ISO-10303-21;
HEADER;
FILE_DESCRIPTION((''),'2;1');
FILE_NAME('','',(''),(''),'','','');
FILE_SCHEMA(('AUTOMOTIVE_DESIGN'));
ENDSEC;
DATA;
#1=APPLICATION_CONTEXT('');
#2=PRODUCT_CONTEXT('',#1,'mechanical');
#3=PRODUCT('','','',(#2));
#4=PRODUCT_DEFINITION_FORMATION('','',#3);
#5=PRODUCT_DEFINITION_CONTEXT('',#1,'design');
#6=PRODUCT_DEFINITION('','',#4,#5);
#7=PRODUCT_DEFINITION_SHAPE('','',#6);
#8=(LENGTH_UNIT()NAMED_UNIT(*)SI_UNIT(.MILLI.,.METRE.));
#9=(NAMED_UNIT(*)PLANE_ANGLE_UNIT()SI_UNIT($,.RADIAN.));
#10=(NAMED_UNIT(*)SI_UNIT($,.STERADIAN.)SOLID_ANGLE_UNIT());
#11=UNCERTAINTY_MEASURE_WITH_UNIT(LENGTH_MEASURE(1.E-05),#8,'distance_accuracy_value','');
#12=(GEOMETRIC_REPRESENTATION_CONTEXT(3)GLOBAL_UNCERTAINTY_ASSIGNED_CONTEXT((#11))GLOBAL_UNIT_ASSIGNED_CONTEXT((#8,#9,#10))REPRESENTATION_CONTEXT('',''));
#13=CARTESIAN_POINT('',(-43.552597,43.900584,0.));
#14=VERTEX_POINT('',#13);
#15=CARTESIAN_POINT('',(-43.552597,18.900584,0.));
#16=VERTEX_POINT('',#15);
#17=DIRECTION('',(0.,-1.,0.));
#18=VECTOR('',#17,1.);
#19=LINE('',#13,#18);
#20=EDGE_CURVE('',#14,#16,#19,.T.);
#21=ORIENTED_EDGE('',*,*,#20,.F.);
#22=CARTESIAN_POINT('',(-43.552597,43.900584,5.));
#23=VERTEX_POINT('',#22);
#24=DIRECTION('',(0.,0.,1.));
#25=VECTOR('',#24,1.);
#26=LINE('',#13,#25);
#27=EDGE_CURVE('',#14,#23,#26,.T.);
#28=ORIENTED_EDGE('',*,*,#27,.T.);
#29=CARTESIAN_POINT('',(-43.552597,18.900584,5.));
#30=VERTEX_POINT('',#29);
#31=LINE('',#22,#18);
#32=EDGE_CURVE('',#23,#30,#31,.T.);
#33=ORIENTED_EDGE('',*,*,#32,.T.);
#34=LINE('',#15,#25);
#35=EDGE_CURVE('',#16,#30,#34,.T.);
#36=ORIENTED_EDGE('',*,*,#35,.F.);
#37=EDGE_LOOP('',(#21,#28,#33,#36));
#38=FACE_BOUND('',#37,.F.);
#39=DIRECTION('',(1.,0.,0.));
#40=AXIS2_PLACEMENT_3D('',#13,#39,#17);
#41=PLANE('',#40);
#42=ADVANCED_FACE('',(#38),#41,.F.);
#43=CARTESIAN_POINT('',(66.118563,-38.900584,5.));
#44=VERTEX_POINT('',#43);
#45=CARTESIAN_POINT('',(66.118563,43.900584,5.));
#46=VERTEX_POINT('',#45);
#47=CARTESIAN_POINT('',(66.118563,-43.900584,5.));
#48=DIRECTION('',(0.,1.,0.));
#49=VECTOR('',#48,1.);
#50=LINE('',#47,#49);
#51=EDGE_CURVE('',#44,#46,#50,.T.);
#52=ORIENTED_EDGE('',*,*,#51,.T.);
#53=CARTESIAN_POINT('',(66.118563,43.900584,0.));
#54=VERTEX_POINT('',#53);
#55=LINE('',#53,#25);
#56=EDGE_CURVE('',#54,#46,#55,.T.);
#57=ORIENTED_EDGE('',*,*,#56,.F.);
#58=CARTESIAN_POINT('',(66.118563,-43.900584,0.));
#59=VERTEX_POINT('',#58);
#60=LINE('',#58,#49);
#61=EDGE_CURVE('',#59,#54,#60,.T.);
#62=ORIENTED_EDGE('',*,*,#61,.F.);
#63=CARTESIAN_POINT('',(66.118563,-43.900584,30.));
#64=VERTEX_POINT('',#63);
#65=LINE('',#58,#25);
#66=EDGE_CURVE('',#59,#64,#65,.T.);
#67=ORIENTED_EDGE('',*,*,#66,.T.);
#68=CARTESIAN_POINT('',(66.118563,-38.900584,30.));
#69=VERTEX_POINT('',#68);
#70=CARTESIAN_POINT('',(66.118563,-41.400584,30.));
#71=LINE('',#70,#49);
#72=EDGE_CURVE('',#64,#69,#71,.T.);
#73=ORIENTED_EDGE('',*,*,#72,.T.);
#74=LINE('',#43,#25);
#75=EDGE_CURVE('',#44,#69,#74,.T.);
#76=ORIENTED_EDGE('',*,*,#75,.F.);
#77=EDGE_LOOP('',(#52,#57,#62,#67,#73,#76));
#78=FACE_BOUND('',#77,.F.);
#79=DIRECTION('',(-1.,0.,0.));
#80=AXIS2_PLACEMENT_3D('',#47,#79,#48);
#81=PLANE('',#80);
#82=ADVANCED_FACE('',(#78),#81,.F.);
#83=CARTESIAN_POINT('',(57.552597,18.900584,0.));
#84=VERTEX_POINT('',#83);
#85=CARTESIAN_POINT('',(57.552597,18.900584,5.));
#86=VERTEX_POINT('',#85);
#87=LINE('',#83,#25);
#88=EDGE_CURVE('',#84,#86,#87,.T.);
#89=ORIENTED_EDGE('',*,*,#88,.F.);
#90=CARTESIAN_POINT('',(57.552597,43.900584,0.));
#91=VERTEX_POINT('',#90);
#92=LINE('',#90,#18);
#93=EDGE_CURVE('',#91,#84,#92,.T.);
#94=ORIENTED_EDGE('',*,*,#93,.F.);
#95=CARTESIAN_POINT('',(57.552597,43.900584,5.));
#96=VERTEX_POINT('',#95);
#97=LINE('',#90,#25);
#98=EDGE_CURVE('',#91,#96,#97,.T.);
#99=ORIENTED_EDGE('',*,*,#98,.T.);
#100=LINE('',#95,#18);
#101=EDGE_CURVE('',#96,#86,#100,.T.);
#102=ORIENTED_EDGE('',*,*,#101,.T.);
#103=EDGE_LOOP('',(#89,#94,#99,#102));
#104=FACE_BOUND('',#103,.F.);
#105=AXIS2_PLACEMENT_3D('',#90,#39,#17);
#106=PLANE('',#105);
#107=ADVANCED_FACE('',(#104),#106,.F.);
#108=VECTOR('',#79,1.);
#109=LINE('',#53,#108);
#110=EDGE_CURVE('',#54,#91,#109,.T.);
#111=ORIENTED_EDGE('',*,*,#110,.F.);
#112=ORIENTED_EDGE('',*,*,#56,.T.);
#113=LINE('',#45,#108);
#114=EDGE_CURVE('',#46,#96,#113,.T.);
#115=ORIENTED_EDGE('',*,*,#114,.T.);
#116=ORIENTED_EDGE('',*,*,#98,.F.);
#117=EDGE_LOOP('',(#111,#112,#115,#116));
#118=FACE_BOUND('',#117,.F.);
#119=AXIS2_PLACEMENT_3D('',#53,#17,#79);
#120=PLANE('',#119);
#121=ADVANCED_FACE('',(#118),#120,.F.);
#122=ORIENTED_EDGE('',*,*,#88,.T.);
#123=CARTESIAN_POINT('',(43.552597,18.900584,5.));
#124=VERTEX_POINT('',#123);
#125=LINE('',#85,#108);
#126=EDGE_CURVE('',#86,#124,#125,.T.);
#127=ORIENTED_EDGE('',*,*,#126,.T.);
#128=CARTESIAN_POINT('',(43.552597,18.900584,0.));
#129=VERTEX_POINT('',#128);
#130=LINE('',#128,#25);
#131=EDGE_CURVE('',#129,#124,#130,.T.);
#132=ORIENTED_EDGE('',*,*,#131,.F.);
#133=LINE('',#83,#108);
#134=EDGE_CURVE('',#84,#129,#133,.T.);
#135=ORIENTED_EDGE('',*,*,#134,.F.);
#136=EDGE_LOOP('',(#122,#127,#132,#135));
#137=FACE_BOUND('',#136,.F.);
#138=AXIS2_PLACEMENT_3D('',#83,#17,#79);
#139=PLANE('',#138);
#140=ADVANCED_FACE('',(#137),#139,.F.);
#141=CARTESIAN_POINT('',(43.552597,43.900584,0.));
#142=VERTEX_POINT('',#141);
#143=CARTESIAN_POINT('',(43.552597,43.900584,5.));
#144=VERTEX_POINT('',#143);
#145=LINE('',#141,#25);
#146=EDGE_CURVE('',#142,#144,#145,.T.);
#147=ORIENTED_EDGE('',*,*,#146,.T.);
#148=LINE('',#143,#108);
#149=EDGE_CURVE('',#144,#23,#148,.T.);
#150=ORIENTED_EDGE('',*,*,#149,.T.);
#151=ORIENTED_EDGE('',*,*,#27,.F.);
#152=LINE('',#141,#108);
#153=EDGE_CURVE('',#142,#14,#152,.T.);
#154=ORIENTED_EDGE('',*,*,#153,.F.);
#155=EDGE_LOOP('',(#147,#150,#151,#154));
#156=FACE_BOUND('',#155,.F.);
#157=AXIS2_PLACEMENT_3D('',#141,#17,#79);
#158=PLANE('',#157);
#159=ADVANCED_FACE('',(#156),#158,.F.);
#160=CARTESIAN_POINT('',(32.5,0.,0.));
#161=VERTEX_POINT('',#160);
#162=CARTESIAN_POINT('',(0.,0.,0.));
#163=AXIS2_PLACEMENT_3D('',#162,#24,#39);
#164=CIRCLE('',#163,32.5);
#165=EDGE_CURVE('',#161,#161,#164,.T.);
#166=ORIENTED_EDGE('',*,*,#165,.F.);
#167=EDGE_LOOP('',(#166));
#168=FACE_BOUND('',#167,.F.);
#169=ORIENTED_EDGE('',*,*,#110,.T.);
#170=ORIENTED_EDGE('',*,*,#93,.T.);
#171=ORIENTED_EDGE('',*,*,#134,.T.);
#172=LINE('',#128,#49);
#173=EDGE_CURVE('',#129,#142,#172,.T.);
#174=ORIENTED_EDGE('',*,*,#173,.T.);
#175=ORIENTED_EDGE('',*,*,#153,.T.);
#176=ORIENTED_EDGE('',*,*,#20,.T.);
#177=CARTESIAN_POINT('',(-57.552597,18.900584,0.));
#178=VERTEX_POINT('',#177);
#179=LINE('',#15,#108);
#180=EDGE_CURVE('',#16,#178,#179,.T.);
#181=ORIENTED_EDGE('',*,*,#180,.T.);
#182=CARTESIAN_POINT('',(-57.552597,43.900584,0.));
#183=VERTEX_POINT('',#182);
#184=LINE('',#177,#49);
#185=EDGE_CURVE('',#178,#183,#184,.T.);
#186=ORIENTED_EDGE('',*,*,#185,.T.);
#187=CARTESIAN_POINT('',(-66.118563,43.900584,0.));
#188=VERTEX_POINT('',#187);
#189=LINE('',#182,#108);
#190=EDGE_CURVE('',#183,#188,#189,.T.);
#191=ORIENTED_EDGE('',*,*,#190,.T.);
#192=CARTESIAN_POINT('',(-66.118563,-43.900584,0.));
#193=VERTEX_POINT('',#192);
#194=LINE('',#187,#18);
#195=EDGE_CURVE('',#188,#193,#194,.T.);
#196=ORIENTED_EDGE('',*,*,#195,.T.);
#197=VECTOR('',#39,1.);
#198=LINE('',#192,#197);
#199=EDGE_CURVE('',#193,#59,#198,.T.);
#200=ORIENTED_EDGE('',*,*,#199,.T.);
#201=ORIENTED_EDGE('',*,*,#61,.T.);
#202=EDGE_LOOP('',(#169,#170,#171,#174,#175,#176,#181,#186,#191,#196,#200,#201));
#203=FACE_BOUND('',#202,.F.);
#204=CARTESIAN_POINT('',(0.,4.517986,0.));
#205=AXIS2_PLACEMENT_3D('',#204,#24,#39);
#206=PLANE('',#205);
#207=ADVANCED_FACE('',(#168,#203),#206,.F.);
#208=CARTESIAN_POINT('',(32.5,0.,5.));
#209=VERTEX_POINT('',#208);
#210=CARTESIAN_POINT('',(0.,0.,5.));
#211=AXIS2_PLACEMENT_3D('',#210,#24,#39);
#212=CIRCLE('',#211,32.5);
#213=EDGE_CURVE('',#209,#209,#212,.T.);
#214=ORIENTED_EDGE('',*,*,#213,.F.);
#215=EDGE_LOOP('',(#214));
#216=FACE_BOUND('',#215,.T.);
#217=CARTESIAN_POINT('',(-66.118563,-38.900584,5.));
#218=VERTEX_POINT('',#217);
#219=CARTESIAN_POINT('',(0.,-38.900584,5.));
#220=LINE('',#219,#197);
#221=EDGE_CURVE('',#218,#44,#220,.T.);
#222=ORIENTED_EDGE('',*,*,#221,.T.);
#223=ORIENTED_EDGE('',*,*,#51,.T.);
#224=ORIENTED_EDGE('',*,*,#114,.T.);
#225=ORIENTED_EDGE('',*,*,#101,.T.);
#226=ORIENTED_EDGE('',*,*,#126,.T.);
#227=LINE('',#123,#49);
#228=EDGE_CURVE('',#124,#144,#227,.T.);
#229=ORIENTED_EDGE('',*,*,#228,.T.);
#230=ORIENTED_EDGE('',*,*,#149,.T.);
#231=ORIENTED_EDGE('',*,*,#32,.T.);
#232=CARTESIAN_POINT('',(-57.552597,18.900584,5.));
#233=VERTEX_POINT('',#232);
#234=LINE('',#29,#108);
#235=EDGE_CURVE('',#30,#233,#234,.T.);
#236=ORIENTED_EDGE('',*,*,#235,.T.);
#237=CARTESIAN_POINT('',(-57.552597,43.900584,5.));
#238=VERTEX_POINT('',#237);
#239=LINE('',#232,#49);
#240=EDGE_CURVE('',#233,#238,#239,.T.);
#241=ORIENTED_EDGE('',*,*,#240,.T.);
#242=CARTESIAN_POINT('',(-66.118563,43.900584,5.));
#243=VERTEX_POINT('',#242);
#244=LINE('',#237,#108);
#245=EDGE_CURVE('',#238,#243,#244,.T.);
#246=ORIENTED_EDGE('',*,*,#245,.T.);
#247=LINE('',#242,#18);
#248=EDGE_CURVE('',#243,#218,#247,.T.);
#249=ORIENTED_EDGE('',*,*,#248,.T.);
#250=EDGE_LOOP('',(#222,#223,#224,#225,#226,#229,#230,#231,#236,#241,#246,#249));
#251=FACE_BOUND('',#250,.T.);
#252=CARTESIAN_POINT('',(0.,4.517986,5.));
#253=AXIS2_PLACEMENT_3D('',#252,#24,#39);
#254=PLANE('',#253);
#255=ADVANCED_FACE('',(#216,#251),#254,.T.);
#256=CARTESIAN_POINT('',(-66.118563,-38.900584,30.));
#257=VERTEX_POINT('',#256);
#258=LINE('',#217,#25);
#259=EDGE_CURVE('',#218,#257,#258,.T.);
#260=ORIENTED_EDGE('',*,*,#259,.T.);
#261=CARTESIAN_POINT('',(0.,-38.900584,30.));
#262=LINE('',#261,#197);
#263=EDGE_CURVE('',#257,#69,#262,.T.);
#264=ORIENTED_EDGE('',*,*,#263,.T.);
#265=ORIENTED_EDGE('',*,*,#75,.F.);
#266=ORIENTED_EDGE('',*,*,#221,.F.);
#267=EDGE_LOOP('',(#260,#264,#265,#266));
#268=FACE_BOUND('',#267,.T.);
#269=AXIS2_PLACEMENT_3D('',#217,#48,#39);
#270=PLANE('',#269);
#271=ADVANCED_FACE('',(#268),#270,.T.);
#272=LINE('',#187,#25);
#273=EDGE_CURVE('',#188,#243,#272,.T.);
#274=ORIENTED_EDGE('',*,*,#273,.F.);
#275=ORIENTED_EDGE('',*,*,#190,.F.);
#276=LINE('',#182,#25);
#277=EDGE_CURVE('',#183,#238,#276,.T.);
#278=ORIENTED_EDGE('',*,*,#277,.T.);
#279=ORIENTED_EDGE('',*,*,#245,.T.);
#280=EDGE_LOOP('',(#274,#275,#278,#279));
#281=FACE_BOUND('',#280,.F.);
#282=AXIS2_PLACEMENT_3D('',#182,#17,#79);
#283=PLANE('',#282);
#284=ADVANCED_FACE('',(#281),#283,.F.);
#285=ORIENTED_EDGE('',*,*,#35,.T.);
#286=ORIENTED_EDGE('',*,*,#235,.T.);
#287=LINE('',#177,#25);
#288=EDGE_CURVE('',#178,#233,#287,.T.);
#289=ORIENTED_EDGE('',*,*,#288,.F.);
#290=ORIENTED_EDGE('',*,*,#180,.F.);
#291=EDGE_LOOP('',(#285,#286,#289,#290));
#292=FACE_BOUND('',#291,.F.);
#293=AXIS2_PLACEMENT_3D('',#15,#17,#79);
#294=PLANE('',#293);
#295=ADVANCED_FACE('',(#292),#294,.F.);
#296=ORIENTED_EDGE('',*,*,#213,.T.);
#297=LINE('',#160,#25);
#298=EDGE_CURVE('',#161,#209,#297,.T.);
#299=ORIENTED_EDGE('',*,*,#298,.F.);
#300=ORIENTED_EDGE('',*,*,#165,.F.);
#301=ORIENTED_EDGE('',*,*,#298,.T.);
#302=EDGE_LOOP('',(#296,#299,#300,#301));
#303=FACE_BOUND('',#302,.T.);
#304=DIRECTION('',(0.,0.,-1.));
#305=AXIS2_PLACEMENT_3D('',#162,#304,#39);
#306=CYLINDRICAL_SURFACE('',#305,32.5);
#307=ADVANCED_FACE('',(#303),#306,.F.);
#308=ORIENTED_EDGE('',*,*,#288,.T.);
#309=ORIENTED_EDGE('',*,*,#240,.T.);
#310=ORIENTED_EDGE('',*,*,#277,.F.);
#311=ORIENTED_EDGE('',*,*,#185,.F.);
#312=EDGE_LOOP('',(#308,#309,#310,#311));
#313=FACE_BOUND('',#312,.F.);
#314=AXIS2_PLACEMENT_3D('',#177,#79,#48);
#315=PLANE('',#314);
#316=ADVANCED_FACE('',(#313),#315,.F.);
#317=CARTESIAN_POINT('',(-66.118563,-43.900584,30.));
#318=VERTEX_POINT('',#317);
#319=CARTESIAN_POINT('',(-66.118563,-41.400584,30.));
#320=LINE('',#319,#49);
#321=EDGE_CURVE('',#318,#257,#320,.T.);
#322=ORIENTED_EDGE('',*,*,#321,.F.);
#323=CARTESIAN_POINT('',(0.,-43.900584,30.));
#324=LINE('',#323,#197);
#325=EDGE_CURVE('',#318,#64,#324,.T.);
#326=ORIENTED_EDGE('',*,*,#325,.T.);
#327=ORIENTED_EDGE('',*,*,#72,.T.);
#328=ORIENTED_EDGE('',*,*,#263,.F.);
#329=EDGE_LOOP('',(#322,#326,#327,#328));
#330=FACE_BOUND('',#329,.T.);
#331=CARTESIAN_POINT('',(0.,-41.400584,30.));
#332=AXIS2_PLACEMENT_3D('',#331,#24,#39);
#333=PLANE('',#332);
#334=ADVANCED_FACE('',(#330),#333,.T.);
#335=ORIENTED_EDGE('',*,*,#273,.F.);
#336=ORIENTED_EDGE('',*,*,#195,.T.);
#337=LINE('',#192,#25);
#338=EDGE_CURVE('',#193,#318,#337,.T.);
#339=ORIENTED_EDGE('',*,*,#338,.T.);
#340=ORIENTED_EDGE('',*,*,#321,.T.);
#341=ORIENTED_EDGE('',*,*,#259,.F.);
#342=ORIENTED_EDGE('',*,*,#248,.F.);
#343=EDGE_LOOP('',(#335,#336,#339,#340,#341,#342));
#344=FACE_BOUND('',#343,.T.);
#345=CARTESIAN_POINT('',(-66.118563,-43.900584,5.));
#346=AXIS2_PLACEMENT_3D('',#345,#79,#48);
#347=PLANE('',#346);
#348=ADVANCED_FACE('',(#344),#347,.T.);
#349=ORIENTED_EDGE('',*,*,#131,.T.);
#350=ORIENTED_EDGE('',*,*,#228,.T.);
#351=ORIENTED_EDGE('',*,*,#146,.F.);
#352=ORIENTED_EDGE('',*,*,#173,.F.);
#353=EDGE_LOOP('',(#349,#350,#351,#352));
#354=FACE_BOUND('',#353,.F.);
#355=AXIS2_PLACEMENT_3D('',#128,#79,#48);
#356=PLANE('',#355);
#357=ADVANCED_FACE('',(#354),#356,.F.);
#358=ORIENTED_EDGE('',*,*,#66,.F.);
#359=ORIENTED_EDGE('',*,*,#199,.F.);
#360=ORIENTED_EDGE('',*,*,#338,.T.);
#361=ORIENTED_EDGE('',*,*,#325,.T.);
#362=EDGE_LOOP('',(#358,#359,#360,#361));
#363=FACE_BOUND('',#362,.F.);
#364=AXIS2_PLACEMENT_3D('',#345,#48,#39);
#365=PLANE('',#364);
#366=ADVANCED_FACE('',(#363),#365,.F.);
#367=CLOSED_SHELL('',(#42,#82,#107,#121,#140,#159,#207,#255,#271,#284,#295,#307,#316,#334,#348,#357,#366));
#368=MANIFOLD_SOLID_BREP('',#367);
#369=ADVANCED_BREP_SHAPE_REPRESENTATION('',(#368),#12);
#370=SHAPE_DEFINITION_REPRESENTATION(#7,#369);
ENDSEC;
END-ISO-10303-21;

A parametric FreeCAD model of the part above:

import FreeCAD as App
import Part
import Sketcher
from FreeCAD import Vector


def add_polygon(sketch, points):
    """Adds a closed chain of lines whose ends are joined by coincident constraints."""
    first, n = sketch.GeometryCount, len(points)
    for a, b in zip(points, points[1:] + points[:1]):
        sketch.addGeometry(Part.LineSegment(App.Vector(*a, 0), App.Vector(*b, 0)), False)
    for i in range(n):
        sketch.addConstraint(Sketcher.Constraint("Coincident", first + i, 2, first + (i + 1) % n, 1))

doc = App.newDocument("Part")
params = doc.addObject("Spreadsheet::Sheet", "Params")
for row, (alias, value) in enumerate([
    ("sketch1_diameter", "65 mm"),
    ("sketch1_width", "14 mm"),
    ("sketch1_height", "25 mm"),
    ("pad1_length", "5 mm"),
    ("sketch2_height", "5 mm"),
    ("pad2_length", "25 mm"),
], start=1):
    params.set(f"A{row}", alias)
    params.set(f"B{row}", "=" + value)
    params.setAlias(f"B{row}", alias)

body = doc.addObject("PartDesign::Body", "Body")

# Sketch on XY plane
sketch1 = body.newObject("Sketcher::SketchObject", "Sketch")
sketch1.AttachmentSupport = (doc.getObject("XY_Plane"), [""])
sketch1.MapMode = "FlatFace"
add_polygon(sketch1, [(66, -44), (66, 44), (58, 44), (58, 19), (44, 19), (44, 44), (-44, 44), (-44, 19), (-58, 19), (-58, 44), (-66, 44), (-66, -44)])  # lines 0-11
sketch1.addGeometry(Part.Circle(Vector(0, 0, 0), Vector(0, 0, 1), 32), False)  # 12
sketch1.addConstraint([
    Sketcher.Constraint("Vertical", 0),
    Sketcher.Constraint("Horizontal", 1),
    Sketcher.Constraint("Vertical", 2),
    Sketcher.Constraint("Horizontal", 3),
    Sketcher.Constraint("Vertical", 4),
    Sketcher.Constraint("Horizontal", 5),
    Sketcher.Constraint("Vertical", 6),
    Sketcher.Constraint("Horizontal", 7),
    Sketcher.Constraint("Vertical", 8),
    Sketcher.Constraint("Horizontal", 9),
    Sketcher.Constraint("Vertical", 10),
    Sketcher.Constraint("Horizontal", 11),
    Sketcher.Constraint("Coincident", 12, 3, -1, 1),
    Sketcher.Constraint("Symmetric", 0, 2, 10, 2, -1, 1),
    Sketcher.Constraint("Symmetric", 3, 2, 6, 2, -2),
    Sketcher.Constraint("Symmetric", 1, 2, 8, 2, -2),
    Sketcher.Constraint("Horizontal", 1, 2, 4, 2),
    Sketcher.Constraint("Diameter", 12, 65.0),
    Sketcher.Constraint("DistanceX", 3, 2, 3, 1, 14.0),
    Sketcher.Constraint("DistanceY", 2, 2, 2, 1, 25.0),
    Sketcher.Constraint("DistanceY", 0, 1, 0, 2, 87.801168),
    Sketcher.Constraint("DistanceX", 1, 2, 1, 1, 8.565966),
    Sketcher.Constraint("DistanceX", 5, 2, 5, 1, 87.105194),
])
sketch1.setExpression("Constraints[29]", "Params.sketch1_diameter")
sketch1.setExpression("Constraints[30]", "Params.sketch1_width")
sketch1.setExpression("Constraints[31]", "Params.sketch1_height")
pad1 = body.newObject("PartDesign::Pad", "Pad")
pad1.Profile = sketch1
pad1.setExpression("Length", "Params.pad1_length")

# Sketch on XY plane
sketch2 = body.newObject("Sketcher::SketchObject", "Sketch001")
sketch2.AttachmentSupport = (doc.getObject("XY_Plane"), [""])
sketch2.MapMode = "FlatFace"
sketch2.AttachmentOffset = App.Placement(Vector(0, 0, 5), App.Rotation())
add_polygon(sketch2, [(-66, -39), (-66, -44), (66, -44), (66, -39)])  # lines 0-3
sketch2.addConstraint([
    Sketcher.Constraint("Vertical", 0),
    Sketcher.Constraint("Horizontal", 1),
    Sketcher.Constraint("Vertical", 2),
    Sketcher.Constraint("Horizontal", 3),
    Sketcher.Constraint("DistanceY", 0, 2, 0, 1, 5.0),
    Sketcher.Constraint("DistanceX", 1, 1, 1, 2, 132.237126),
    Sketcher.Constraint("DistanceX", 0, 2, -1, 1, 66.118563),
    Sketcher.Constraint("DistanceY", 0, 2, -1, 1, 43.900584),
])
sketch2.setExpression("Constraints[8]", "Params.sketch2_height")
pad2 = body.newObject("PartDesign::Pad", "Pad001")
pad2.Profile = sketch2
pad2.setExpression("Length", "Params.pad2_length")

doc.recompute()
